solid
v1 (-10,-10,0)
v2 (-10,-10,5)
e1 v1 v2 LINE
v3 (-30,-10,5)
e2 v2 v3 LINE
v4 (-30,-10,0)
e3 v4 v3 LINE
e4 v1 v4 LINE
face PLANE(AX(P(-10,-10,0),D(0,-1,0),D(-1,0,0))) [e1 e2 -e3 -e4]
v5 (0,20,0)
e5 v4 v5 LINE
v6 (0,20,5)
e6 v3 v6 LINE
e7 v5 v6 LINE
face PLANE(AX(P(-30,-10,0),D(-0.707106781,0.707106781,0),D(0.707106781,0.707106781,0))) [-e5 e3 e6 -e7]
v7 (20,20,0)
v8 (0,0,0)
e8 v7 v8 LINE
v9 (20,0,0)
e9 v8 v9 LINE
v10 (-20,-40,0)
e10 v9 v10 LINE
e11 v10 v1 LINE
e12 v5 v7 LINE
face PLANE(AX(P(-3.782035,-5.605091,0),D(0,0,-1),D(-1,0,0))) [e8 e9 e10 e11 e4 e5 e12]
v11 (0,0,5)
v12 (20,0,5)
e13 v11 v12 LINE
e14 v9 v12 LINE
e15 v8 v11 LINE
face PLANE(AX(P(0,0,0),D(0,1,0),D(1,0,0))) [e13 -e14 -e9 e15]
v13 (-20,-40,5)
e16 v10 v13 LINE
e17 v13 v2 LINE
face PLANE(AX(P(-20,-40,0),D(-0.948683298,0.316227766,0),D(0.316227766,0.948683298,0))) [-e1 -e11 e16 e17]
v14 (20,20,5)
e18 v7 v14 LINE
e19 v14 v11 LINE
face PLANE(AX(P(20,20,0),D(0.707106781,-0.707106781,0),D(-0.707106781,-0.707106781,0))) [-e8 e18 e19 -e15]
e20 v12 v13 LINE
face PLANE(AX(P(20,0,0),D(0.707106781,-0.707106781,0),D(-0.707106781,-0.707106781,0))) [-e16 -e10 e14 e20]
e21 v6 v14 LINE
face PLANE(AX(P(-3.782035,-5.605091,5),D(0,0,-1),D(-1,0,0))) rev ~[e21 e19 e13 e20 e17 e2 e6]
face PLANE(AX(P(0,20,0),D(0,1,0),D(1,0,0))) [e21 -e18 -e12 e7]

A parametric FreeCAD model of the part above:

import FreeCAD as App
import Part
import Sketcher

V = App.Vector
Q = App.Units.Quantity


def add_polygon(sketch, points):
    """Adds a closed chain of lines whose ends are joined by coincident constraints."""
    first, n = sketch.GeometryCount, len(points)
    for a, b in zip(points, points[1:] + points[:1]):
        sketch.addGeometry(Part.LineSegment(App.Vector(*a, 0), App.Vector(*b, 0)), False)
    for i in range(n):
        sketch.addConstraint(Sketcher.Constraint("Coincident", first + i, 2, first + (i + 1) % n, 1))

doc = App.newDocument("Part")
body = doc.addObject("PartDesign::Body", "Body")

sketch1 = body.newObject("Sketcher::SketchObject", "Sketch")
sketch1.AttachmentSupport = (doc.getObject("XY_Plane"), [""])
sketch1.MapMode = "FlatFace"
add_polygon(sketch1, [(20, 20), (0, 20), (-30, -10), (-10, -10), (-20, -40), (20, 0), (0, 0)])
sketch1.addConstraint(Sketcher.Constraint("Horizontal", 0))
sketch1.addConstraint(Sketcher.Constraint("Horizontal", 2))
sketch1.addConstraint(Sketcher.Constraint("Horizontal", 5))
sketch1.addConstraint(Sketcher.Constraint("Coincident", 5, 2, -1, 1))
sketch1.addConstraint(Sketcher.Constraint("PointOnObject", 0, 2, -2))
sketch1.addConstraint(Sketcher.Constraint("Parallel", 1, 4))
sketch1.addConstraint(Sketcher.Constraint("Parallel", 4, 6))
sketch1.addConstraint(Sketcher.Constraint("Vertical", 4, 2, 6, 2))
sketch1.addConstraint(Sketcher.Constraint("Equal", 0, 2))
sketch1.addConstraint(Sketcher.Constraint("DistanceX", 0, 2, 0, 1, 20.0))
sketch1.addConstraint(Sketcher.Constraint("Angle", 1, Q("-135 deg")))
sketch1.addConstraint(Sketcher.Constraint("DistanceX", 1, 2, -1, 1, 30.0))
sketch1.addConstraint(Sketcher.Constraint("DistanceX", 3, 2, -1, 1, 20.0))
pad1 = body.newObject("PartDesign::Pad", "Pad")
pad1.Profile = sketch1
pad1.Length = 5

doc.recompute()
